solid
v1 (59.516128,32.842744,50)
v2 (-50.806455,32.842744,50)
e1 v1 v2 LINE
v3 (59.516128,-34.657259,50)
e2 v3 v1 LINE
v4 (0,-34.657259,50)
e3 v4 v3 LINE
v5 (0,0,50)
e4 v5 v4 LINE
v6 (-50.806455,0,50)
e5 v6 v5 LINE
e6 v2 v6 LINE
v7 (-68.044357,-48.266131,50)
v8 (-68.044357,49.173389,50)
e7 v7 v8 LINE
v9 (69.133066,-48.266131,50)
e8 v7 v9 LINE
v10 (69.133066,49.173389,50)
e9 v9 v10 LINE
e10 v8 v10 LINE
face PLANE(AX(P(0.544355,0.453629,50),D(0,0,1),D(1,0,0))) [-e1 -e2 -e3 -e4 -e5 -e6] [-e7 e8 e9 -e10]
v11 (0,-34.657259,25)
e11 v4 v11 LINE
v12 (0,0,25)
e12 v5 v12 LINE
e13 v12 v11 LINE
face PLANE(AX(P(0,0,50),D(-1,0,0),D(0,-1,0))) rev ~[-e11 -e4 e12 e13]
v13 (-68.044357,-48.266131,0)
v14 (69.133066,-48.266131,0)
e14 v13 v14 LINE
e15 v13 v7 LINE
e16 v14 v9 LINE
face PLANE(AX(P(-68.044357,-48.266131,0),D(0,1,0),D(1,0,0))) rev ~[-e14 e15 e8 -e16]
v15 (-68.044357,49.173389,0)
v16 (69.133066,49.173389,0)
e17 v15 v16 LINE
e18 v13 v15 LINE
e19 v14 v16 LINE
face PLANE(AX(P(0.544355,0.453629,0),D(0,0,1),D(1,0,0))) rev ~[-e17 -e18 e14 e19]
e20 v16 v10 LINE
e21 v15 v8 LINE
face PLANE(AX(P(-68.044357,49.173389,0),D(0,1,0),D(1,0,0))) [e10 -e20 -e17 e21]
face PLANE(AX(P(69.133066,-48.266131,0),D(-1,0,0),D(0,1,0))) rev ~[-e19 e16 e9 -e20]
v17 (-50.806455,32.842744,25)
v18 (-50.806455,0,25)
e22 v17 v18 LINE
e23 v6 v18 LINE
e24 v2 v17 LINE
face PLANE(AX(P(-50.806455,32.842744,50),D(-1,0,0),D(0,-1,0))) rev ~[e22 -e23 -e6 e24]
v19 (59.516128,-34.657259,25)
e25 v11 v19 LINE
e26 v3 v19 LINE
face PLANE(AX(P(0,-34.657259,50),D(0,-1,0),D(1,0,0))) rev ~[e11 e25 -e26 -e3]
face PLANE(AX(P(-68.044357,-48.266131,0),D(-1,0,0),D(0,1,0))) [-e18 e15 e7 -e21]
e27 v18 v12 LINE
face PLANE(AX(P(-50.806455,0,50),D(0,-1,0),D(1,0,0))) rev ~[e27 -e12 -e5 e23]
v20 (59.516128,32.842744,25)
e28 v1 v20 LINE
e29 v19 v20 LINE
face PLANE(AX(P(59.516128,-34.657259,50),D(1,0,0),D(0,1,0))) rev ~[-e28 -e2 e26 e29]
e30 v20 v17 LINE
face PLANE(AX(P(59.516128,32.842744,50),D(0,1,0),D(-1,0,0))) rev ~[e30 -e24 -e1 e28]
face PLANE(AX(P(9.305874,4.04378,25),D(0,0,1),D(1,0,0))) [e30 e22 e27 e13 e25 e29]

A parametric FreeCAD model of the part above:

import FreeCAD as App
import Part
import Sketcher

V = App.Vector
Q = App.Units.Quantity

doc = App.newDocument("Part")
body = doc.addObject("PartDesign::Body", "Body")

# Sketch on XY plane
sketch1 = doc.addObject("Sketcher::SketchObject", "Sketch")
body.addObject(sketch1)
sketch1.AttachmentSupport = (doc.XY_Plane, [""])
sketch1.MapMode = "FlatFace"
sketch1.addGeometry(Part.LineSegment(V(-68, 49, 0), V(-68, -48, 0)), False)
sketch1.addGeometry(Part.LineSegment(V(-68, -48, 0), V(69, -48, 0)), False)
sketch1.addGeometry(Part.LineSegment(V(69, -48, 0), V(69, 49, 0)), False)
sketch1.addGeometry(Part.LineSegment(V(69, 49, 0), V(-68, 49, 0)), False)
sketch1.addConstraint(Sketcher.Constraint("Coincident", 0, 2, 1, 1))
sketch1.addConstraint(Sketcher.Constraint("Coincident", 1, 2, 2, 1))
sketch1.addConstraint(Sketcher.Constraint("Coincident", 2, 2, 3, 1))
sketch1.addConstraint(Sketcher.Constraint("Coincident", 3, 2, 0, 1))
sketch1.addConstraint(Sketcher.Constraint("Vertical", 0))
sketch1.addConstraint(Sketcher.Constraint("Horizontal", 1))
sketch1.addConstraint(Sketcher.Constraint("Vertical", 2))
sketch1.addConstraint(Sketcher.Constraint("Horizontal", 3))
sketch1.addConstraint(Sketcher.Constraint("DistanceY", 0, 2, 0, 1, Q("97.43952 mm")))
sketch1.addConstraint(Sketcher.Constraint("DistanceX", 1, 1, 1, 2, Q("137.177423 mm")))
sketch1.addConstraint(Sketcher.Constraint("DistanceY", 0, 2, -1, 1, Q("48.266131 mm")))
sketch1.addConstraint(Sketcher.Constraint("DistanceX", 0, 2, -1, 1, Q("68.044357 mm")))
pad1 = doc.addObject("PartDesign::Pad", "Pad")
body.addObject(pad1)
pad1.Profile = sketch1
pad1.Length = 50

# Sketch on XY plane
sketch2 = doc.addObject("Sketcher::SketchObject", "Sketch001")
body.addObject(sketch2)
sketch2.AttachmentSupport = (doc.XY_Plane, [""])
sketch2.MapMode = "FlatFace"
sketch2.AttachmentOffset = App.Placement(V(0, 0, 50), App.Rotation())
sketch2.addGeometry(Part.LineSegment(V(60, 33, 0), V(-51, 33, 0)), False)
sketch2.addGeometry(Part.LineSegment(V(-51, 33, 0), V(-51, 0, 0)), False)
sketch2.addGeometry(Part.LineSegment(V(-51, 0, 0), V(0, 0, 0)), False)
sketch2.addGeometry(Part.LineSegment(V(0, 0, 0), V(0, -35, 0)), False)
sketch2.addGeometry(Part.LineSegment(V(0, -35, 0), V(60, -35, 0)), False)
sketch2.addGeometry(Part.LineSegment(V(60, -35, 0), V(60, 33, 0)), False)
sketch2.addConstraint(Sketcher.Constraint("Coincident", 0, 2, 1, 1))
sketch2.addConstraint(Sketcher.Constraint("Coincident", 1, 2, 2, 1))
sketch2.addConstraint(Sketcher.Constraint("Coincident", 2, 2, 3, 1))
sketch2.addConstraint(Sketcher.Constraint("Coincident", 3, 2, 4, 1))
sketch2.addConstraint(Sketcher.Constraint("Coincident", 4, 2, 5, 1))
sketch2.addConstraint(Sketcher.Constraint("Coincident", 5, 2, 0, 1))
sketch2.addConstraint(Sketcher.Constraint("Horizontal", 0))
sketch2.addConstraint(Sketcher.Constraint("Vertical", 1))
sketch2.addConstraint(Sketcher.Constraint("Horizontal", 2))
sketch2.addConstraint(Sketcher.Constraint("Vertical", 3))
sketch2.addConstraint(Sketcher.Constraint("Horizontal", 4))
sketch2.addConstraint(Sketcher.Constraint("Vertical", 5))
sketch2.addConstraint(Sketcher.Constraint("Coincident", 2, 2, -1, 1))
sketch2.addConstraint(Sketcher.Constraint("DistanceX", 4, 1, 4, 2, Q("59.516128 mm")))
sketch2.addConstraint(Sketcher.Constraint("DistanceY", 3, 2, 3, 1, Q("34.657259 mm")))
sketch2.addConstraint(Sketcher.Constraint("DistanceX", 0, 2, 0, 1, Q("110.322583 mm")))
sketch2.addConstraint(Sketcher.Constraint("DistanceY", 1, 2, 1, 1, Q("32.842744 mm")))
pocket1 = doc.addObject("PartDesign::Pocket", "Pocket")
body.addObject(pocket1)
pocket1.Profile = sketch2
pocket1.Length = 25

doc.recompute()
